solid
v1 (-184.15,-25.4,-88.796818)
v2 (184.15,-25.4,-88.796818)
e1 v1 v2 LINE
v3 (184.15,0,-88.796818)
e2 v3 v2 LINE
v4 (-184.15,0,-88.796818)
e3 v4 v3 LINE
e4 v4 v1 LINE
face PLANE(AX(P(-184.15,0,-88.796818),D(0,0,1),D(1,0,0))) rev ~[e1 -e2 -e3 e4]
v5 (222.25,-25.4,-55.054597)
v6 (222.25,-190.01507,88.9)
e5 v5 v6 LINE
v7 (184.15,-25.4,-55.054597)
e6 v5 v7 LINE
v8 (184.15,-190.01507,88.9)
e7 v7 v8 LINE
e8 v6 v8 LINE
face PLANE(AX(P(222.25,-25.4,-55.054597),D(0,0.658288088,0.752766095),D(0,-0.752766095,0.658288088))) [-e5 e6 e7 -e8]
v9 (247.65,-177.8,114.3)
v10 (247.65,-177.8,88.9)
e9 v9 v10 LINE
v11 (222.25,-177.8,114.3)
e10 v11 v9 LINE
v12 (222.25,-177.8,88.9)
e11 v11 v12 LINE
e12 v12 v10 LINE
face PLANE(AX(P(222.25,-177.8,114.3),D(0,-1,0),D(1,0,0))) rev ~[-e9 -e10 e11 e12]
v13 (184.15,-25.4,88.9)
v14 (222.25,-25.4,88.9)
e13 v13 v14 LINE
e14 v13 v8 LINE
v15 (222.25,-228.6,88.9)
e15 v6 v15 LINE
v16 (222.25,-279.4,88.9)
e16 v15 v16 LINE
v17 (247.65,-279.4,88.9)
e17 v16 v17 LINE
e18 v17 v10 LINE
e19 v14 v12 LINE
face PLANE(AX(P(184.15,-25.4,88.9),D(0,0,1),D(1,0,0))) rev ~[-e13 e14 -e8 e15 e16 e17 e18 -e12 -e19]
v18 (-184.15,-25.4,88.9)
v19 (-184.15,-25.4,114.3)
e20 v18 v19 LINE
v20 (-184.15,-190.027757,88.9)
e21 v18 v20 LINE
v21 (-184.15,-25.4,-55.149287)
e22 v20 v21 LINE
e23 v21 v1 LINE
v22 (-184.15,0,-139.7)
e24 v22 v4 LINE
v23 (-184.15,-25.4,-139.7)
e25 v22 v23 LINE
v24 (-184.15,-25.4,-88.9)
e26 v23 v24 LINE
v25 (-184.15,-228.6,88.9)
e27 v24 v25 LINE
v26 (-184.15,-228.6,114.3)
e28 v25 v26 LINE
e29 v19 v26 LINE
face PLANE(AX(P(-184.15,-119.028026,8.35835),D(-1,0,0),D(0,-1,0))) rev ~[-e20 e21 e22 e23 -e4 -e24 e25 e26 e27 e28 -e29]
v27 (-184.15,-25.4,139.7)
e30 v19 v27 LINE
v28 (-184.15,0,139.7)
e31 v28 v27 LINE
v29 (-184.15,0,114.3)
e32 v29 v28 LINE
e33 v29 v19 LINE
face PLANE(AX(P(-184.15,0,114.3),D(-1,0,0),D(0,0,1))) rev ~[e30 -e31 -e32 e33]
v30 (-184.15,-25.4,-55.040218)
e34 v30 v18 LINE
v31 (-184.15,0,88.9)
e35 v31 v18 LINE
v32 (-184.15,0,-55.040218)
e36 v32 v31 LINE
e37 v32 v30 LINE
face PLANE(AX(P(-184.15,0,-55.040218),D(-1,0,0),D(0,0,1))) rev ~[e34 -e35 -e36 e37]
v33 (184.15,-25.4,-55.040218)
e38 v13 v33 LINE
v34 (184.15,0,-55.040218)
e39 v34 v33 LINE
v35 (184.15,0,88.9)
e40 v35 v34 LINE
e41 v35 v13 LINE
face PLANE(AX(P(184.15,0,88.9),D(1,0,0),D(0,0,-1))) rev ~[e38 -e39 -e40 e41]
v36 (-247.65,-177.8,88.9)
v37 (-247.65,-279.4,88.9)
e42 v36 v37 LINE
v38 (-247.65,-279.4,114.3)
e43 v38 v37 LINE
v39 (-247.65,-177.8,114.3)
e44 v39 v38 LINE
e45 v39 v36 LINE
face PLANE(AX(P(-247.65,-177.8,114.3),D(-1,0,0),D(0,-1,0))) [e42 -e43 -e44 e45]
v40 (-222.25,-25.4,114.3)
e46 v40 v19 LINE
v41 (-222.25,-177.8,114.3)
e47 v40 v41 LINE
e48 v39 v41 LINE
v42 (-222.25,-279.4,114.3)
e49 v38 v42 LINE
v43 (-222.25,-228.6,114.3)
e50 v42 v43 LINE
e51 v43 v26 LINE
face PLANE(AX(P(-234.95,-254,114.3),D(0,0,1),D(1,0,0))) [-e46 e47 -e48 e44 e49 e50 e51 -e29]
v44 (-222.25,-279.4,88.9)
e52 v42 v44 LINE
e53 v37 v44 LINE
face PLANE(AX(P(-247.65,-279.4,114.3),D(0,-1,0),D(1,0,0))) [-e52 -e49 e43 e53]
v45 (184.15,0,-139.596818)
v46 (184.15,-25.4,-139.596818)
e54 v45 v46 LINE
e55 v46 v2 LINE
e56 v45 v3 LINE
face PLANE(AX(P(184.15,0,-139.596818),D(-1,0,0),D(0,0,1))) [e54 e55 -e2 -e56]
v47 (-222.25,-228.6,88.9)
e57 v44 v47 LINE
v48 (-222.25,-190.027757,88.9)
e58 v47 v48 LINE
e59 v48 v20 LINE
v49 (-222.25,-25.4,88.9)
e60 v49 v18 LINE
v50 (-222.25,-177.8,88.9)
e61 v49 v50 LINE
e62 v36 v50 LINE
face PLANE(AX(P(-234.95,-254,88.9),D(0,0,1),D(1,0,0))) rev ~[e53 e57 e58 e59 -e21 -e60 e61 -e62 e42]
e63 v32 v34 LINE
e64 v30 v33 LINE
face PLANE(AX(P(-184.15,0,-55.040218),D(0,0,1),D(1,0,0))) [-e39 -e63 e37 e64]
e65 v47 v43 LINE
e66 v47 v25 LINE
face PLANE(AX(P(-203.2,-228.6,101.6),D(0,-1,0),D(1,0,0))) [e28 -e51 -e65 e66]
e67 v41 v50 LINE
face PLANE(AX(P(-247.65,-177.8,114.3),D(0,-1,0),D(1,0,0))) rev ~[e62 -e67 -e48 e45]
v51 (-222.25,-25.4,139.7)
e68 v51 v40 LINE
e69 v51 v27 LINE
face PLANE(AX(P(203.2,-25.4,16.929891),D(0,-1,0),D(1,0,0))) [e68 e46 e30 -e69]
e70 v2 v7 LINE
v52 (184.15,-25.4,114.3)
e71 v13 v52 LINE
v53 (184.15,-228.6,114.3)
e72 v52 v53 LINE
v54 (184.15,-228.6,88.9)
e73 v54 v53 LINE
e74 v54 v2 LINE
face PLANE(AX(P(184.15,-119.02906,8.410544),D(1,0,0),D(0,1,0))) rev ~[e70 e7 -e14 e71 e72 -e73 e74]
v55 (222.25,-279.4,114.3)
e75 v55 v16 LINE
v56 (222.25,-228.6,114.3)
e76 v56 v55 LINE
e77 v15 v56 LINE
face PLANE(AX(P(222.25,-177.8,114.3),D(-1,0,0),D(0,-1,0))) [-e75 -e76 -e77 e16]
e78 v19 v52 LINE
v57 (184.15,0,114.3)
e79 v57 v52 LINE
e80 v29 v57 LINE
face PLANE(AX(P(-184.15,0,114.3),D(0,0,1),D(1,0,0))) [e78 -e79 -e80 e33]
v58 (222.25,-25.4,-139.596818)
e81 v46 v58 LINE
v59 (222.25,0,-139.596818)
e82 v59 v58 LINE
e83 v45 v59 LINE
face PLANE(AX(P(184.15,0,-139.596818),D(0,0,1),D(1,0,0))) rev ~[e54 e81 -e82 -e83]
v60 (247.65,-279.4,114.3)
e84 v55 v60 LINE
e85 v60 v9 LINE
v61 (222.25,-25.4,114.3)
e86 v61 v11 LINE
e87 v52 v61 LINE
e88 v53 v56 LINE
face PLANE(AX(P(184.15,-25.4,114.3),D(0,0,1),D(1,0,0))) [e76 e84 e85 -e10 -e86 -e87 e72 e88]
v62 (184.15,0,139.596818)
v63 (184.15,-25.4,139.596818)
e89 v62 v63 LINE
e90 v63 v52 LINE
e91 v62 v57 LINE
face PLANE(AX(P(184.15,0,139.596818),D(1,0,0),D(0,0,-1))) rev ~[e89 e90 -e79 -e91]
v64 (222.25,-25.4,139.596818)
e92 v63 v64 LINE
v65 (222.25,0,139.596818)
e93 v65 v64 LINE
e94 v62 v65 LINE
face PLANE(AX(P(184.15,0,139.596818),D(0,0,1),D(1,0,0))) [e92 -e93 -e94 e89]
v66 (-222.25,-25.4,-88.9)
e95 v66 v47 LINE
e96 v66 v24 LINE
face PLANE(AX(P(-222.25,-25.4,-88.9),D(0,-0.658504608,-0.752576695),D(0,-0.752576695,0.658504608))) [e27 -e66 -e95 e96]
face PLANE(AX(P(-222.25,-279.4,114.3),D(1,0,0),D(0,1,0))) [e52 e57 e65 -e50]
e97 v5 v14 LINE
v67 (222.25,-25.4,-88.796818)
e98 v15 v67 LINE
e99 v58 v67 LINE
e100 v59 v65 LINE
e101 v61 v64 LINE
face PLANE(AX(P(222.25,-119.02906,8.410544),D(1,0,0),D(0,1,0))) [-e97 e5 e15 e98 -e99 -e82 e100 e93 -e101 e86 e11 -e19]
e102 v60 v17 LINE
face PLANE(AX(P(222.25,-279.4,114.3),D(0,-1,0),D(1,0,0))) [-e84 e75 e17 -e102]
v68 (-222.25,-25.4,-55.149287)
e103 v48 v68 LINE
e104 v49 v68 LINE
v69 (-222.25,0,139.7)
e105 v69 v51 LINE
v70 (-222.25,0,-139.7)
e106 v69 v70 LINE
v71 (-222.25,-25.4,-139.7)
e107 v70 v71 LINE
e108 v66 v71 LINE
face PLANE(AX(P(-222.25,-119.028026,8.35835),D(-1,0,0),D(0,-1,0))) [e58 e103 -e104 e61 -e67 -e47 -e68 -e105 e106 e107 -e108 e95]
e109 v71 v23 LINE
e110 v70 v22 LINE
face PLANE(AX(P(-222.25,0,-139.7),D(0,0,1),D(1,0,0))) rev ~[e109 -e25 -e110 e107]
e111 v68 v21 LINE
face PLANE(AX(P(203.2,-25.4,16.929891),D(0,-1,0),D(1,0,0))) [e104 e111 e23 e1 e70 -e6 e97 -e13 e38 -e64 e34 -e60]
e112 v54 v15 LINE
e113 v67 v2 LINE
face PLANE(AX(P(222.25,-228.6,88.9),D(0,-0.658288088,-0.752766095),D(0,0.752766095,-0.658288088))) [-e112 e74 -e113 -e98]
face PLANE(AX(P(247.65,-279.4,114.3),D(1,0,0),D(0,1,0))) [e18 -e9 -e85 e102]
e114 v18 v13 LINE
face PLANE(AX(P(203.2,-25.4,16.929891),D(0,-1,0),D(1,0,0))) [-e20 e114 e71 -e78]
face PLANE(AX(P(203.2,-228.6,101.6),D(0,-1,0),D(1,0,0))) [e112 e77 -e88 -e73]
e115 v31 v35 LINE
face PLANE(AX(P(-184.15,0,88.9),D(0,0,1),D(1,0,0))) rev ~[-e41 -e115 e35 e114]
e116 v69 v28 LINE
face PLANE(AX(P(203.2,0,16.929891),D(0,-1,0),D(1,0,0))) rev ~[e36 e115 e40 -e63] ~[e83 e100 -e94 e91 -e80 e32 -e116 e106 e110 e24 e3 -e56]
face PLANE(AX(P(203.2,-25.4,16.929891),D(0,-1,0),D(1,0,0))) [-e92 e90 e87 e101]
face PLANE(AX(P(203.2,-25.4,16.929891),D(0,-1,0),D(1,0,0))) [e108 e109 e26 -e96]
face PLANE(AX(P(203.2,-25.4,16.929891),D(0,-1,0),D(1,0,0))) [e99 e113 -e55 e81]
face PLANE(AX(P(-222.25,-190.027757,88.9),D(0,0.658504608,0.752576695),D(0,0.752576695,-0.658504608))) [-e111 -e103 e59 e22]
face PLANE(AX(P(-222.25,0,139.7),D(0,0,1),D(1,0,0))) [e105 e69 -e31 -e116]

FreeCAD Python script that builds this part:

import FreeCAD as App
import Part
import Sketcher
from FreeCAD import Vector
Q = App.Units.Quantity

doc = App.newDocument("Part")
body = doc.addObject("PartDesign::Body", "Body")

# Sketch on XZ plane
sketch1 = body.newObject("Sketcher::SketchObject", "Sketch")
sketch1.AttachmentSupport = (doc.getObject("XZ_Plane"), [""])
sketch1.MapMode = "FlatFace"
sketch1.addGeometry([
    Part.LineSegment(Vector(-184, 114, 0), Vector(-184, 140, 0)),  # 0
    Part.LineSegment(Vector(-184, 140, 0), Vector(-222, 140, 0)),  # 1
    Part.LineSegment(Vector(-222, 140, 0), Vector(-222, -140, 0)),  # 2
    Part.LineSegment(Vector(-222, -140, 0), Vector(-184, -140, 0)),  # 3
    Part.LineSegment(Vector(-184, -140, 0), Vector(-184, -89, 0)),  # 4
    Part.LineSegment(Vector(-184, -89, 0), Vector(184, -89, 0)),  # 5
    Part.LineSegment(Vector(184, -89, 0), Vector(184, -140, 0)),  # 6
    Part.LineSegment(Vector(184, -140, 0), Vector(222, -140, 0)),  # 7
    Part.LineSegment(Vector(222, -140, 0), Vector(222, 140, 0)),  # 8
    Part.LineSegment(Vector(222, 140, 0), Vector(184, 140, 0)),  # 9
    Part.LineSegment(Vector(184, 140, 0), Vector(184, 114, 0)),  # 10
    Part.LineSegment(Vector(184, 114, 0), Vector(-184, 114, 0)),  # 11
    Part.LineSegment(Vector(184, -55, 0), Vector(-184, -55, 0)),  # 12
    Part.LineSegment(Vector(-184, -55, 0), Vector(-184, 89, 0)),  # 13
    Part.LineSegment(Vector(-184, 89, 0), Vector(184, 89, 0)),  # 14
    Part.LineSegment(Vector(184, 89, 0), Vector(184, -55, 0)),  # 15
], False)
sketch1.addConstraint([
    Sketcher.Constraint("Coincident", 0, 2, 1, 1),
    Sketcher.Constraint("Coincident", 1, 2, 2, 1),
    Sketcher.Constraint("Coincident", 2, 2, 3, 1),
    Sketcher.Constraint("Coincident", 3, 2, 4, 1),
    Sketcher.Constraint("Coincident", 4, 2, 5, 1),
    Sketcher.Constraint("Coincident", 5, 2, 6, 1),
    Sketcher.Constraint("Coincident", 6, 2, 7, 1),
    Sketcher.Constraint("Coincident", 7, 2, 8, 1),
    Sketcher.Constraint("Coincident", 8, 2, 9, 1),
    Sketcher.Constraint("Coincident", 9, 2, 10, 1),
    Sketcher.Constraint("Coincident", 10, 2, 11, 1),
    Sketcher.Constraint("Coincident", 11, 2, 0, 1),
    Sketcher.Constraint("Coincident", 12, 2, 13, 1),
    Sketcher.Constraint("Coincident", 13, 2, 14, 1),
    Sketcher.Constraint("Coincident", 14, 2, 15, 1),
    Sketcher.Constraint("Coincident", 15, 2, 12, 1),
    Sketcher.Constraint("Vertical", 0),
    Sketcher.Constraint("Horizontal", 1),
    Sketcher.Constraint("Vertical", 2),
    Sketcher.Constraint("Horizontal", 3),
    Sketcher.Constraint("Vertical", 4),
    Sketcher.Constraint("Horizontal", 5),
    Sketcher.Constraint("Vertical", 6),
    Sketcher.Constraint("Horizontal", 7),
    Sketcher.Constraint("Vertical", 8),
    Sketcher.Constraint("Horizontal", 9),
    Sketcher.Constraint("Vertical", 10),
    Sketcher.Constraint("Horizontal", 11),
    Sketcher.Constraint("Horizontal", 12),
    Sketcher.Constraint("Vertical", 13),
    Sketcher.Constraint("Horizontal", 14),
    Sketcher.Constraint("Vertical", 15),
    Sketcher.Constraint("Symmetric", 0, 2, 3, 2, -1),
    Sketcher.Constraint("Symmetric", 6, 2, 9, 2, -1),
    Sketcher.Constraint("Vertical", 11, 2, 12, 2),
    Sketcher.Constraint("Vertical", 10, 2, 14, 2),
    Sketcher.Constraint("Equal", 3, 7),
    Sketcher.Constraint("DistanceY", 0, 1, 0, 2, Q("1 in")),
    Sketcher.Constraint("DistanceY", 2, 2, 2, 1, Q("11 in")),
    Sketcher.Constraint("DistanceY", 6, 2, 6, 1, Q("2 in")),
    Sketcher.Constraint("DistanceX", 1, 2, 1, 1, Q("1.5 in")),
    Sketcher.Constraint("DistanceX", 5, 1, 5, 2, Q("14.5 in")),
    Sketcher.Constraint("DistanceY", 13, 2, 11, 2, Q("1 in")),
    Sketcher.Constraint("DistanceX", 0, 2, -1, 1, Q("7.25 in")),
    Sketcher.Constraint("DistanceY", 4, 2, 12, 2, Q("1.329 in")),
    Sketcher.Constraint("DistanceY", 4, 1, 4, 2, Q("50.903182 mm")),
])
pad1 = body.newObject("PartDesign::Pad", "Pad")
pad1.Profile = sketch1
pad1.Length = Q("1 in")

# Sketch on XZ plane
sketch2 = body.newObject("Sketcher::SketchObject", "Sketch001")
sketch2.AttachmentSupport = (doc.getObject("XZ_Plane"), [""])
sketch2.MapMode = "FlatFace"
sketch2.AttachmentOffset = App.Placement(Vector(0, 0, 1 * 25.4), App.Rotation())
sketch2.addGeometry([
    Part.LineSegment(Vector(-222, 114, 0), Vector(-222, 89, 0)),  # 0
    Part.LineSegment(Vector(-222, 89, 0), Vector(-184, 89, 0)),  # 1
    Part.LineSegment(Vector(-184, 89, 0), Vector(-184, 114, 0)),  # 2
    Part.LineSegment(Vector(-184, 114, 0), Vector(-222, 114, 0)),  # 3
    Part.LineSegment(Vector(184, 114, 0), Vector(184, 89, 0)),  # 4
    Part.LineSegment(Vector(184, 89, 0), Vector(222, 89, 0)),  # 5
    Part.LineSegment(Vector(222, 89, 0), Vector(222, 114, 0)),  # 6
    Part.LineSegment(Vector(222, 114, 0), Vector(184, 114, 0)),  # 7
], False)
sketch2.addConstraint([
    Sketcher.Constraint("Coincident", 0, 2, 1, 1),
    Sketcher.Constraint("Coincident", 1, 2, 2, 1),
    Sketcher.Constraint("Coincident", 2, 2, 3, 1),
    Sketcher.Constraint("Coincident", 3, 2, 0, 1),
    Sketcher.Constraint("Coincident", 4, 2, 5, 1),
    Sketcher.Constraint("Coincident", 5, 2, 6, 1),
    Sketcher.Constraint("Coincident", 6, 2, 7, 1),
    Sketcher.Constraint("Coincident", 7, 2, 4, 1),
    Sketcher.Constraint("Vertical", 0),
    Sketcher.Constraint("Horizontal", 1),
    Sketcher.Constraint("Vertical", 2),
    Sketcher.Constraint("Horizontal", 3),
    Sketcher.Constraint("Vertical", 4),
    Sketcher.Constraint("Horizontal", 5),
    Sketcher.Constraint("Vertical", 6),
    Sketcher.Constraint("Horizontal", 7),
    Sketcher.Constraint("Symmetric", 1, 2, 4, 2, -2),
    Sketcher.Constraint("Symmetric", 3, 2, 6, 2, -2),
    Sketcher.Constraint("DistanceY", 0, 2, 0, 1, Q("1 in")),
    Sketcher.Constraint("DistanceX", 1, 1, 1, 2, Q("1.5 in")),
    Sketcher.Constraint("DistanceX", 0, 2, 4, 2, Q("16 in")),
    Sketcher.Constraint("DistanceY", -1, 1, 0, 2, Q("3.5 in")),
])
pad2 = body.newObject("PartDesign::Pad", "Pad001")
pad2.Profile = sketch2
pad2.Length = Q("8 in")

# Sketch on YZ plane
sketch3 = body.newObject("Sketcher::SketchObject", "Sketch002")
sketch3.AttachmentSupport = (doc.getObject("YZ_Plane"), [""])
sketch3.MapMode = "FlatFace"
sketch3.AttachmentOffset = App.Placement(Vector(0, 0, -8.75 * 25.4), App.Rotation())
sketch3.addGeometry([
    Part.LineSegment(Vector(-25, -89, 0), Vector(-229, 89, 0)),
    Part.LineSegment(Vector(-229, 89, 0), Vector(-190, 89, 0)),
    Part.LineSegment(Vector(-190, 89, 0), Vector(-25, -55, 0)),
    Part.LineSegment(Vector(-25, -55, 0), Vector(-25, -89, 0)),
], False)
sketch3.addConstraint([
    Sketcher.Constraint("Coincident", 0, 2, 1, 1),
    Sketcher.Constraint("Coincident", 1, 2, 2, 1),
    Sketcher.Constraint("Coincident", 2, 2, 3, 1),
    Sketcher.Constraint("Coincident", 3, 2, 0, 1),
    Sketcher.Constraint("Horizontal", 1),
    Sketcher.Constraint("Vertical", 3),
    Sketcher.Constraint("Parallel", 0, 2),
    Sketcher.Constraint("DistanceX", 0, 2, -1, 1, Q("9 in")),
    Sketcher.Constraint("DistanceX", 2, 2, -1, 1, Q("1 in")),
    Sketcher.Constraint("DistanceY", 3, 2, 1, 2, Q("7 in")),
    Sketcher.Constraint("DistanceY", -1, 1, 0, 2, Q("3.5 in")),
    Sketcher.Constraint("DistanceX", 1, 1, 1, 2, Q("38.572243 mm")),
])
pad3 = body.newObject("PartDesign::Pad", "Pad002")
pad3.Profile = sketch3
pad3.Length = Q("1.5 in")

# Sketch on YZ plane
sketch4 = body.newObject("Sketcher::SketchObject", "Sketch003")
sketch4.AttachmentSupport = (doc.getObject("YZ_Plane"), [""])
sketch4.MapMode = "FlatFace"
sketch4.AttachmentOffset = App.Placement(Vector(0, 0, 8.75 * 25.4), App.Rotation())
sketch4.addGeometry([
    Part.LineSegment(Vector(-25, -55, 0), Vector(-190, 89, 0)),
    Part.LineSegment(Vector(-190, 89, 0), Vector(-229, 89, 0)),
    Part.LineSegment(Vector(-229, 89, 0), Vector(-25, -89, 0)),
    Part.LineSegment(Vector(-25, -89, 0), Vector(-25, -55, 0)),
], False)
sketch4.addConstraint([
    Sketcher.Constraint("Coincident", 0, 2, 1, 1),
    Sketcher.Constraint("Coincident", 1, 2, 2, 1),
    Sketcher.Constraint("Coincident", 2, 2, 3, 1),
    Sketcher.Constraint("Coincident", 3, 2, 0, 1),
    Sketcher.Constraint("Horizontal", 1),
    Sketcher.Constraint("Vertical", 3),
    Sketcher.Constraint("Parallel", 0, 2),
    Sketcher.Constraint("DistanceX", 1, 2, -1, 1, Q("9 in")),
    Sketcher.Constraint("DistanceX", 2, 2, -1, 1, Q("1 in")),
    Sketcher.Constraint("DistanceY", -1, 1, 0, 2, Q("3.5 in")),
    Sketcher.Constraint("DistanceX", 1, 2, 1, 1, Q("38.58493 mm")),
    Sketcher.Constraint("DistanceY", 3, 1, 3, 2, Q("33.742221 mm")),
])
pad4 = body.newObject("PartDesign::Pad", "Pad003")
pad4.Profile = sketch4
pad4.Length = Q("1.5 in")
pad4.Reversed = True

# Sketch on XY plane
sketch5 = body.newObject("Sketcher::SketchObject", "Sketch004")
sketch5.AttachmentSupport = (doc.getObject("XY_Plane"), [""])
sketch5.MapMode = "FlatFace"
sketch5.AttachmentOffset = App.Placement(Vector(0, 0, 4.5 * 25.4), App.Rotation())
sketch5.addGeometry([
    Part.LineSegment(Vector(-248, -279, 0), Vector(-222, -279, 0)),  # 0
    Part.LineSegment(Vector(-222, -279, 0), Vector(-222, -178, 0)),  # 1
    Part.LineSegment(Vector(-222, -178, 0), Vector(-248, -178, 0)),  # 2
    Part.LineSegment(Vector(-248, -178, 0), Vector(-248, -279, 0)),  # 3
    Part.LineSegment(Vector(222, -178, 0), Vector(222, -279, 0)),  # 4
    Part.LineSegment(Vector(222, -279, 0), Vector(248, -279, 0)),  # 5
    Part.LineSegment(Vector(248, -279, 0), Vector(248, -178, 0)),  # 6
    Part.LineSegment(Vector(248, -178, 0), Vector(222, -178, 0)),  # 7
], False)
sketch5.addConstraint([
    Sketcher.Constraint("Coincident", 0, 2, 1, 1),
    Sketcher.Constraint("Coincident", 1, 2, 2, 1),
    Sketcher.Constraint("Coincident", 2, 2, 3, 1),
    Sketcher.Constraint("Coincident", 3, 2, 0, 1),
    Sketcher.Constraint("Coincident", 4, 2, 5, 1),
    Sketcher.Constraint("Coincident", 5, 2, 6, 1),
    Sketcher.Constraint("Coincident", 6, 2, 7, 1),
    Sketcher.Constraint("Coincident", 7, 2, 4, 1),
    Sketcher.Constraint("Horizontal", 0),
    Sketcher.Constraint("Vertical", 1),
    Sketcher.Constraint("Horizontal", 2),
    Sketcher.Constraint("Vertical", 3),
    Sketcher.Constraint("Vertical", 4),
    Sketcher.Constraint("Horizontal", 5),
    Sketcher.Constraint("Vertical", 6),
    Sketcher.Constraint("Horizontal", 7),
    Sketcher.Constraint("Symmetric", 0, 2, 4, 2, -2),
    Sketcher.Constraint("Symmetric", 2, 2, 6, 2, -2),
    Sketcher.Constraint("DistanceX", 0, 1, 0, 2, Q("1 in")),
    Sketcher.Constraint("DistanceY", 1, 1, 1, 2, Q("4 in")),
    Sketcher.Constraint("DistanceY", 0, 2, -1, 1, Q("11 in")),
    Sketcher.Constraint("DistanceX", 0, 2, 4, 2, Q("17.5 in")),
])
pad5 = body.newObject("PartDesign::Pad", "Pad004")
pad5.Profile = sketch5
pad5.Length = Q("1 in")
pad5.Reversed = True

doc.recompute()
